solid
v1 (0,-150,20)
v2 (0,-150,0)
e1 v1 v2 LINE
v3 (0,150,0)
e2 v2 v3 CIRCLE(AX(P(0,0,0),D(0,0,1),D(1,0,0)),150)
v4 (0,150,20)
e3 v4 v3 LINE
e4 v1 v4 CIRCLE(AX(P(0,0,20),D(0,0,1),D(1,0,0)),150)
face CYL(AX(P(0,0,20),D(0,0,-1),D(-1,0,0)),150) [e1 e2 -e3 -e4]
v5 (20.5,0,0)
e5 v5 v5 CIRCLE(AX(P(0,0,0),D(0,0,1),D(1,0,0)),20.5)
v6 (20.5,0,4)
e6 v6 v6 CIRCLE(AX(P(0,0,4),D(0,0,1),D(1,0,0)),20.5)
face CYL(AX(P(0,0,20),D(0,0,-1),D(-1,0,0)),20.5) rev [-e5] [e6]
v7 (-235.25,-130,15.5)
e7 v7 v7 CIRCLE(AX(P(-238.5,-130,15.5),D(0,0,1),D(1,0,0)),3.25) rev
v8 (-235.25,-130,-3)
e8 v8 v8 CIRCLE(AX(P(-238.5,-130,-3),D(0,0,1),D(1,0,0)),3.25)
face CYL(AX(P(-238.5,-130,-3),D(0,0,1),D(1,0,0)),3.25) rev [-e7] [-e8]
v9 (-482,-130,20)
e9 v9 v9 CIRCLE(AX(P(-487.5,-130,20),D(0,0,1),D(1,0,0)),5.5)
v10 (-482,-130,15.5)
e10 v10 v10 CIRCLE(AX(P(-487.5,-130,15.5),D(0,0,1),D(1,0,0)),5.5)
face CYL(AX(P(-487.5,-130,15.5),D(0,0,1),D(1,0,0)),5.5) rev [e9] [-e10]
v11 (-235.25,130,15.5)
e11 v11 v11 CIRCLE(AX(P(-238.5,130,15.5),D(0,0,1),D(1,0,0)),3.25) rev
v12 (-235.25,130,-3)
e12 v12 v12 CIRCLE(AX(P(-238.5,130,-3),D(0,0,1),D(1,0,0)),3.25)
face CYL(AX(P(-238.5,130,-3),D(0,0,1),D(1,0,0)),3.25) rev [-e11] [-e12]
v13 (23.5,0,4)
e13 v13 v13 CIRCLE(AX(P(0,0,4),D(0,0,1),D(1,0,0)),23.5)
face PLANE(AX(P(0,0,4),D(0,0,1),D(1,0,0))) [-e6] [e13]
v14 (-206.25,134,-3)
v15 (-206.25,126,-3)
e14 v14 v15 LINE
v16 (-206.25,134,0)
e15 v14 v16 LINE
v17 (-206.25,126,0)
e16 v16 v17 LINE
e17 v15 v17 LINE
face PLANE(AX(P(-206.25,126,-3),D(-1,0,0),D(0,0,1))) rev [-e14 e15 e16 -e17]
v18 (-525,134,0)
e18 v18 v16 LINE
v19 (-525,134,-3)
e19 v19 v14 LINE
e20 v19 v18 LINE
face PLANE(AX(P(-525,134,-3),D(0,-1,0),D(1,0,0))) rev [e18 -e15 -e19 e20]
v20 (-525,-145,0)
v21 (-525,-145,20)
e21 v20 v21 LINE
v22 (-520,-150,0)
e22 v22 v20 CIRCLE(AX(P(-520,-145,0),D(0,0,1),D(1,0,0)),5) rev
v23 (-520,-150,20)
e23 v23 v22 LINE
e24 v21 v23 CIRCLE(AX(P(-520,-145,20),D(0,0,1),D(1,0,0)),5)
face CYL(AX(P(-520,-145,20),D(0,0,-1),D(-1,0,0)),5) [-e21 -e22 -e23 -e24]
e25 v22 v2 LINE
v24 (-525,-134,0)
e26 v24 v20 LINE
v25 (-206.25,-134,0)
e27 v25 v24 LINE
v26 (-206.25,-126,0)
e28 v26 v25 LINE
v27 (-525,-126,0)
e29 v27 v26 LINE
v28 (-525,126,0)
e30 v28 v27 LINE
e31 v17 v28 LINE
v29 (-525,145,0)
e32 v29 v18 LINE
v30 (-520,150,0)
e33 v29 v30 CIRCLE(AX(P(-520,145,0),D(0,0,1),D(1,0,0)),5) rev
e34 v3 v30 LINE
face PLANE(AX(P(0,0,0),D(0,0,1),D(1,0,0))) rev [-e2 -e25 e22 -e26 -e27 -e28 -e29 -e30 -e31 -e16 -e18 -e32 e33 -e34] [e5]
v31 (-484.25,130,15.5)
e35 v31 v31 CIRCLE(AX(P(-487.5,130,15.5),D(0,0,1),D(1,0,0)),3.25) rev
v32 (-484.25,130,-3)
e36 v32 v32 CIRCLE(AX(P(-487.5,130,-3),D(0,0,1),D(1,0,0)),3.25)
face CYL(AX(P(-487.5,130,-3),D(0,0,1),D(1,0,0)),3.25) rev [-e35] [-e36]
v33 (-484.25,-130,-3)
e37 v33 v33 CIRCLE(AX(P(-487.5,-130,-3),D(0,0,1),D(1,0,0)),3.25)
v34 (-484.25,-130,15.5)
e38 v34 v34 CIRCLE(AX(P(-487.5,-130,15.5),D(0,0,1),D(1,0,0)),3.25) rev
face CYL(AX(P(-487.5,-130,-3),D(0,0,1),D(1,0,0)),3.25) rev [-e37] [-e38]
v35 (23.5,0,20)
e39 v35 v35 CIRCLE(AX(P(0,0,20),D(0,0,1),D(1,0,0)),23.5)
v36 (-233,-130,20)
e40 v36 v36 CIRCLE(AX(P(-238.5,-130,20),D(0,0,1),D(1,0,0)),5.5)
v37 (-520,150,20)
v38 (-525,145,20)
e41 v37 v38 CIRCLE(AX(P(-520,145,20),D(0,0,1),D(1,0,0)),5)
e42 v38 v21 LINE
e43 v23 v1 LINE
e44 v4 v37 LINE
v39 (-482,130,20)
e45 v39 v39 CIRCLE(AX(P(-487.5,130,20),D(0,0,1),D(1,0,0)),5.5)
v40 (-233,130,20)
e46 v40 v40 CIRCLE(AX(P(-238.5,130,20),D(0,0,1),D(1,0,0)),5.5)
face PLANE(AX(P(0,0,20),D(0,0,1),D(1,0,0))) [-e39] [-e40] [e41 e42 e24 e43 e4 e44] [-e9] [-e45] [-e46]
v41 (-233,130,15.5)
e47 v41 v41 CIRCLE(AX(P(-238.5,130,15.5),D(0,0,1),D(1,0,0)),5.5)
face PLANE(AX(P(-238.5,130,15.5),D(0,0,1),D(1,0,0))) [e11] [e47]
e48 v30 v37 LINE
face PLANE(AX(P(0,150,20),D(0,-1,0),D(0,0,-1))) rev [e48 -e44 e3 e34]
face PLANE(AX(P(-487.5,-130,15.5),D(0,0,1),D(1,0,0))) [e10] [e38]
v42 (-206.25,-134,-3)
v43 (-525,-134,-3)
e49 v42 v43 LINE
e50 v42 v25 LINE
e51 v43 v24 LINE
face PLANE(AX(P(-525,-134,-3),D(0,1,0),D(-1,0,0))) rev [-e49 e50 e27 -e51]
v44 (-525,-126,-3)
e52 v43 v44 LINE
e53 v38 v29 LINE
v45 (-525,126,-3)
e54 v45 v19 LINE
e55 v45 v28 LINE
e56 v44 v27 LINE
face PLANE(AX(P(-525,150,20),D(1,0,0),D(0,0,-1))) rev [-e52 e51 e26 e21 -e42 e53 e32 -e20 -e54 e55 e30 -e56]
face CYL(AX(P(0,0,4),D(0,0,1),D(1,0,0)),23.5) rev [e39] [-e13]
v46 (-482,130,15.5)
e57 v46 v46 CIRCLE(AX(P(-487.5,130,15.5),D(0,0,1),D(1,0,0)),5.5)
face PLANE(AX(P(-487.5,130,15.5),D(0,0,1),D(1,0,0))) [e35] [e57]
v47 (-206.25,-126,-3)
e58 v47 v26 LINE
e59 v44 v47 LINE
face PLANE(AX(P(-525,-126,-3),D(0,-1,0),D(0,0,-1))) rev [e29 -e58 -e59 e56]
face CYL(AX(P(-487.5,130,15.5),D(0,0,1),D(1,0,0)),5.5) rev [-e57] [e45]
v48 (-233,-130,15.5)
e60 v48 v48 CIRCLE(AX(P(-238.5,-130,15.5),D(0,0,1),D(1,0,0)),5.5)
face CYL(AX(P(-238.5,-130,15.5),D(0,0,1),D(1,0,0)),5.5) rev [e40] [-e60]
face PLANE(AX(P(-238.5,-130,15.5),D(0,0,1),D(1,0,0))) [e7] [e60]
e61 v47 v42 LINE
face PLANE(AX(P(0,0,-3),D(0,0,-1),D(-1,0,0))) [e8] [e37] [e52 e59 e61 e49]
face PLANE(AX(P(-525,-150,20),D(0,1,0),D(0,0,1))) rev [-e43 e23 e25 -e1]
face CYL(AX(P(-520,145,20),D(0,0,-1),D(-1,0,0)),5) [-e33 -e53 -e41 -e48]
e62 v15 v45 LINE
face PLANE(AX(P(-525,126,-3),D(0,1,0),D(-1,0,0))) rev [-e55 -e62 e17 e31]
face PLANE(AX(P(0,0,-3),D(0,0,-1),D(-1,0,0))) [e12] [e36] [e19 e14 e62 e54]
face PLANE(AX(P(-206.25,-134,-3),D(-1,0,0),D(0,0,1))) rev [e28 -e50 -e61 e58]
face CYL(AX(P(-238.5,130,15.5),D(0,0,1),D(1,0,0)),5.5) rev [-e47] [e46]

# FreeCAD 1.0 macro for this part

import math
import FreeCAD as App
import Part
import Sketcher


def edges_at(feature, points):
    """Names of the edges that pass closest to the given points."""
    edges = feature.Shape.Edges
    near = lambda p: min(range(len(edges)), key=lambda i: edges[i].distToShape(Part.Vertex(*p))[0])
    return sorted({f"Edge{near(p) + 1}" for p in points})


def add_polygon(sketch, points):
    """Adds a closed chain of lines whose ends are joined by coincident constraints."""
    first, n = sketch.GeometryCount, len(points)
    for a, b in zip(points, points[1:] + points[:1]):
        sketch.addGeometry(Part.LineSegment(App.Vector(*a, 0), App.Vector(*b, 0)), False)
    for i in range(n):
        sketch.addConstraint(Sketcher.Constraint("Coincident", first + i, 2, first + (i + 1) % n, 1))

doc = App.newDocument("Part")
body = doc.addObject("PartDesign::Body", "Body")

# Sketch on XY plane
sketch1 = body.newObject("Sketcher::SketchObject", "Sketch")
sketch1.AttachmentSupport = (doc.getObject("XY_Plane"), [""])
sketch1.MapMode = "FlatFace"
sketch1.addGeometry(Part.LineSegment(App.Vector(0, 150, 0), App.Vector(-525, 150, 0)), False)
sketch1.addGeometry(Part.LineSegment(App.Vector(-525, 150, 0), App.Vector(-525, -150, 0)), False)
sketch1.addGeometry(Part.LineSegment(App.Vector(-525, -150, 0), App.Vector(0, -150, 0)), False)
sketch1.addGeometry(Part.ArcOfCircle(Part.Circle(App.Vector(0, 0, 0), App.Vector(0, 0, 1), 150), math.radians(-90), math.radians(90)), False)
sketch1.addGeometry(Part.Circle(App.Vector(0, 0, 0), App.Vector(0, 0, 1), 20), False)
sketch1.addConstraint(Sketcher.Constraint("Coincident", 0, 2, 1, 1))
sketch1.addConstraint(Sketcher.Constraint("Coincident", 1, 2, 2, 1))
sketch1.addConstraint(Sketcher.Constraint("Tangent", 2, 2, 3, 1))
sketch1.addConstraint(Sketcher.Constraint("Tangent", 3, 2, 0, 1))
sketch1.addConstraint(Sketcher.Constraint("Horizontal", 0))
sketch1.addConstraint(Sketcher.Constraint("Vertical", 1))
sketch1.addConstraint(Sketcher.Constraint("Horizontal", 2))
sketch1.addConstraint(Sketcher.Constraint("Coincident", 3, 3, -1, 1))
sketch1.addConstraint(Sketcher.Constraint("Coincident", 4, 3, -1, 1))
sketch1.addConstraint(Sketcher.Constraint("Diameter", 4, 41.0))
sketch1.addConstraint(Sketcher.Constraint("Radius", 3, 150.0))
sketch1.addConstraint(Sketcher.Constraint("DistanceX", 0, 2, 0, 1, 525.0))
pad1 = body.newObject("PartDesign::Pad", "Pad")
pad1.Profile = sketch1
pad1.Length = 20

# Sketch on XY plane
sketch2 = body.newObject("Sketcher::SketchObject", "Sketch001")
sketch2.AttachmentSupport = (doc.getObject("XY_Plane"), [""])
sketch2.MapMode = "FlatFace"
sketch2.AttachmentOffset = App.Placement(App.Vector(0, 0, 20), App.Rotation())
sketch2.addGeometry(Part.Circle(App.Vector(0, 0, 0), App.Vector(0, 0, 1), 24), False)
sketch2.addConstraint(Sketcher.Constraint("Coincident", 0, 3, -1, 1))
sketch2.addConstraint(Sketcher.Constraint("Diameter", 0, 47.0))
pocket1 = body.newObject("PartDesign::Pocket", "Pocket")
pocket1.Profile = sketch2
pocket1.Length = 16

# Sketch on XY plane
sketch3 = body.newObject("Sketcher::SketchObject", "Sketch002")
sketch3.AttachmentSupport = (doc.getObject("XY_Plane"), [""])
sketch3.MapMode = "FlatFace"
add_polygon(sketch3, [(-206, -126), (-206, -134), (-525, -134), (-525, -126)])  # lines 0-3
add_polygon(sketch3, [(-206, 134), (-206, 126), (-525, 126), (-525, 134)])  # lines 4-7
sketch3.addConstraint(Sketcher.Constraint("Vertical", 0))
sketch3.addConstraint(Sketcher.Constraint("Horizontal", 1))
sketch3.addConstraint(Sketcher.Constraint("Vertical", 2))
sketch3.addConstraint(Sketcher.Constraint("Horizontal", 3))
sketch3.addConstraint(Sketcher.Constraint("Vertical", 4))
sketch3.addConstraint(Sketcher.Constraint("Horizontal", 5))
sketch3.addConstraint(Sketcher.Constraint("Vertical", 6))
sketch3.addConstraint(Sketcher.Constraint("Horizontal", 7))
sketch3.addConstraint(Sketcher.Constraint("Symmetric", 3, 2, 4, 2, -1))
sketch3.addConstraint(Sketcher.Constraint("Symmetric", 1, 2, 6, 2, -1))
sketch3.addConstraint(Sketcher.Constraint("DistanceY", 0, 2, 0, 1, 8.0))
sketch3.addConstraint(Sketcher.Constraint("DistanceY", 0, 2, -1, 1, 134.0))
sketch3.addConstraint(Sketcher.Constraint("DistanceX", 1, 2, -1, 1, 525.0))
sketch3.addConstraint(Sketcher.Constraint("DistanceX", 1, 2, 1, 1, 318.75))
pad2 = body.newObject("PartDesign::Pad", "Pad001")
pad2.Profile = sketch3
pad2.Length = 3
pad2.Reversed = True

# Sketch on XY plane
sketch4 = body.newObject("Sketcher::SketchObject", "Sketch003")
sketch4.AttachmentSupport = (doc.getObject("XY_Plane"), [""])
sketch4.MapMode = "FlatFace"
sketch4.AttachmentOffset = App.Placement(App.Vector(0, 0, 20), App.Rotation())
sketch4.addGeometry(Part.Circle(App.Vector(-238.5, 130, 0), App.Vector(0, 0, 1), 3.2), False)
sketch4.addGeometry(Part.Circle(App.Vector(-487.5, 130, 0), App.Vector(0, 0, 1), 3.2), False)
sketch4.addGeometry(Part.Circle(App.Vector(-487.5, -130, 0), App.Vector(0, 0, 1), 3.2), False)
sketch4.addGeometry(Part.Circle(App.Vector(-238.5, -130, 0), App.Vector(0, 0, 1), 3.2), False)
sketch4.addConstraint(Sketcher.Constraint("Equal", 0, 1))
sketch4.addConstraint(Sketcher.Constraint("Equal", 1, 2))
sketch4.addConstraint(Sketcher.Constraint("Equal", 2, 3))
sketch4.addConstraint(Sketcher.Constraint("Symmetric", 1, 3, 2, 3, -1))
sketch4.addConstraint(Sketcher.Constraint("Symmetric", 0, 3, 3, 3, -1))
sketch4.addConstraint(Sketcher.Constraint("Horizontal", 0, 3, 1, 3))
sketch4.addConstraint(Sketcher.Constraint("Diameter", 0, 6.5))
sketch4.addConstraint(Sketcher.Constraint("DistanceY", -1, 1, 0, 3, 130.0))
sketch4.addConstraint(Sketcher.Constraint("DistanceX", 1, 3, 0, 3, 249.0))
sketch4.addConstraint(Sketcher.Constraint("DistanceX", 0, 3, -1, 1, 238.5))
pocket2 = body.newObject("PartDesign::Pocket", "Pocket001")
pocket2.Profile = sketch4
pocket2.Type = "ThroughAll"

# Sketch on XY plane
sketch5 = body.newObject("Sketcher::SketchObject", "Sketch004")
sketch5.AttachmentSupport = (doc.getObject("XY_Plane"), [""])
sketch5.MapMode = "FlatFace"
sketch5.AttachmentOffset = App.Placement(App.Vector(0, 0, 20), App.Rotation())
sketch5.addGeometry(Part.Circle(App.Vector(-488, 130, 0), App.Vector(0, 0, 1), 6), False)
sketch5.addGeometry(Part.Circle(App.Vector(-238, 130, 0), App.Vector(0, 0, 1), 6), False)
sketch5.addGeometry(Part.Circle(App.Vector(-238, -130, 0), App.Vector(0, 0, 1), 6), False)
sketch5.addGeometry(Part.Circle(App.Vector(-488, -130, 0), App.Vector(0, 0, 1), 6), False)
sketch5.addConstraint(Sketcher.Constraint("Equal", 0, 1))
sketch5.addConstraint(Sketcher.Constraint("Equal", 1, 2))
sketch5.addConstraint(Sketcher.Constraint("Equal", 2, 3))
sketch5.addConstraint(Sketcher.Constraint("Symmetric", 1, 3, 2, 3, -1))
sketch5.addConstraint(Sketcher.Constraint("Symmetric", 0, 3, 3, 3, -1))
sketch5.addConstraint(Sketcher.Constraint("Horizontal", 0, 3, 1, 3))
sketch5.addConstraint(Sketcher.Constraint("Diameter", 0, 11.0))
sketch5.addConstraint(Sketcher.Constraint("DistanceY", -1, 1, 0, 3, 130.0))
sketch5.addConstraint(Sketcher.Constraint("DistanceX", 0, 3, 1, 3, 249.0))
sketch5.addConstraint(Sketcher.Constraint("DistanceX", 0, 3, -1, 1, 487.5))
pocket3 = body.newObject("PartDesign::Pocket", "Pocket002")
pocket3.Profile = sketch5
pocket3.Length = 4.5
doc.recompute()

fillet = body.newObject("PartDesign::Fillet", "Fillet")
fillet.Base = (pocket3, edges_at(pocket3, [(-525, -150, 10), (-525, 150, 10)]))
fillet.Radius = 5

doc.recompute()
